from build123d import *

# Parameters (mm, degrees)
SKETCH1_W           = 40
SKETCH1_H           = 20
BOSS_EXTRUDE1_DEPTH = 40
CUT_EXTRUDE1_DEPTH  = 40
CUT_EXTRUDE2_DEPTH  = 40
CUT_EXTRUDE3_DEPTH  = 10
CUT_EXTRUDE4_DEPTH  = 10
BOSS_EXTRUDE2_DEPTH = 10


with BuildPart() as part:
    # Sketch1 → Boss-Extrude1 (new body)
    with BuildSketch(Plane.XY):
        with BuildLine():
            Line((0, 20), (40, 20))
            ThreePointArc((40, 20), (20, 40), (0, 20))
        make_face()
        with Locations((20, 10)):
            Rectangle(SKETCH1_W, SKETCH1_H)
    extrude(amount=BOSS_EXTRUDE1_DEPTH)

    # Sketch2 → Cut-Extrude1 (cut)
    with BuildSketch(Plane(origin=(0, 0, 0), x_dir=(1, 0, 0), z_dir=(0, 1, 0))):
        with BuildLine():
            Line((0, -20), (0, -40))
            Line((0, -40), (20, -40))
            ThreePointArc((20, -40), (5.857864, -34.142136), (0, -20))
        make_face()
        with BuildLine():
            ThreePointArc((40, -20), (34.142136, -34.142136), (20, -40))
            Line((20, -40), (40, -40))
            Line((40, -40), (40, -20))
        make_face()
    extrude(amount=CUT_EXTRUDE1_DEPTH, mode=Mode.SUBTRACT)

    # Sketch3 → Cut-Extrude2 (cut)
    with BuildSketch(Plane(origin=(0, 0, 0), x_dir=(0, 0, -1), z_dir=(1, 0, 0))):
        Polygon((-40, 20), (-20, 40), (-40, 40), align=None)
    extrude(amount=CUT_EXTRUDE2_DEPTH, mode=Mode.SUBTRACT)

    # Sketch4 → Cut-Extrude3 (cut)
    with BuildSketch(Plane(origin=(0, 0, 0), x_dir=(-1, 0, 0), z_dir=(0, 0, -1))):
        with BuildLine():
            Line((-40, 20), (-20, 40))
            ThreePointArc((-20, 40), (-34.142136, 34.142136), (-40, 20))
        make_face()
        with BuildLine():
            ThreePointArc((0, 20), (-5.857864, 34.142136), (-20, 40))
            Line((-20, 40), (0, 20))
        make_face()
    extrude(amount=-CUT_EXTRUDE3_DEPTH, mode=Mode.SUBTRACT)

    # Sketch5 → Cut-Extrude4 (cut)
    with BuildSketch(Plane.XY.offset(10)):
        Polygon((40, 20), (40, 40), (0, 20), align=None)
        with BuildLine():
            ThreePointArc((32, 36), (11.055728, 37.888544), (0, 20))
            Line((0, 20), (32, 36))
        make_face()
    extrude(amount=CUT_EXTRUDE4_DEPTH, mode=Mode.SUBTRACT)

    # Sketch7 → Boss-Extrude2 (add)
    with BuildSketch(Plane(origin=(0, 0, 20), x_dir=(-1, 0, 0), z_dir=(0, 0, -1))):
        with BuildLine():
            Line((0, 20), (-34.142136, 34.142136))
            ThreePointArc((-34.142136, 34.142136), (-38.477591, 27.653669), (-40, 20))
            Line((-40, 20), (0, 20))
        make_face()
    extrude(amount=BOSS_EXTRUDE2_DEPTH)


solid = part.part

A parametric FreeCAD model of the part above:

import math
import FreeCAD as App
import Part
import Sketcher
Q = App.Units.Quantity


def add_polygon(sketch, points):
    """Adds a closed chain of lines whose ends are joined by coincident constraints."""
    first, n = sketch.GeometryCount, len(points)
    for a, b in zip(points, points[1:] + points[:1]):
        sketch.addGeometry(Part.LineSegment(App.Vector(*a, 0), App.Vector(*b, 0)), False)
    for i in range(n):
        sketch.addConstraint(Sketcher.Constraint("Coincident", first + i, 2, first + (i + 1) % n, 1))

doc = App.newDocument("Part")
body = doc.addObject("PartDesign::Body", "Body")

# Sketch on XY plane
sketch1 = body.newObject("Sketcher::SketchObject", "Sketch")
sketch1.AttachmentSupport = (doc.getObject("XY_Plane"), [""])
sketch1.MapMode = "FlatFace"
sketch1.addGeometry([
    Part.ArcOfCircle(Part.Circle(App.Vector(20, 20, 0), App.Vector(0, 0, 1), 20), math.radians(0), math.radians(180)),
    Part.LineSegment(App.Vector(0, 20, 0), App.Vector(0, 0, 0)),
    Part.LineSegment(App.Vector(0, 0, 0), App.Vector(40, 0, 0)),
    Part.LineSegment(App.Vector(40, 0, 0), App.Vector(40, 20, 0)),
], False)
sketch1.addConstraint([
    Sketcher.Constraint("Tangent", 0, 2, 1, 1),
    Sketcher.Constraint("Coincident", 1, 2, 2, 1),
    Sketcher.Constraint("Coincident", 2, 2, 3, 1),
    Sketcher.Constraint("Tangent", 3, 2, 0, 1),
    Sketcher.Constraint("Vertical", 1),
    Sketcher.Constraint("Horizontal", 2),
    Sketcher.Constraint("Vertical", 3),
    Sketcher.Constraint("Coincident", 1, 2, -1, 1),
    Sketcher.Constraint("Radius", 0, Q("20 mm")),
    Sketcher.Constraint("DistanceY", 1, 2, 1, 1, Q("20 mm")),
])
pad1 = body.newObject("PartDesign::Pad", "Pad")
pad1.Profile = sketch1
pad1.Length = 40

# Sketch on XZ plane
sketch2 = body.newObject("Sketcher::SketchObject", "Sketch001")
sketch2.AttachmentSupport = (doc.getObject("XZ_Plane"), [""])
sketch2.MapMode = "FlatFace"
sketch2.addGeometry([
    Part.LineSegment(App.Vector(0, 20, 0), App.Vector(0, 40, 0)),  # 0
    Part.LineSegment(App.Vector(0, 40, 0), App.Vector(20, 40, 0)),  # 1
    Part.ArcOfCircle(Part.Circle(App.Vector(20, 20, 0), App.Vector(0, 0, 1), 20), math.radians(90), math.radians(180)),  # 2
    Part.ArcOfCircle(Part.Circle(App.Vector(20, 20, 0), App.Vector(0, 0, 1), 20), math.radians(0), math.radians(90)),  # 3
    Part.LineSegment(App.Vector(20, 40, 0), App.Vector(40, 40, 0)),  # 4
    Part.LineSegment(App.Vector(40, 40, 0), App.Vector(40, 20, 0)),  # 5
], False)
sketch2.addConstraint([
    Sketcher.Constraint("Coincident", 0, 2, 1, 1),
    Sketcher.Constraint("Tangent", 1, 2, 2, 1),
    Sketcher.Constraint("Tangent", 2, 2, 0, 1),
    Sketcher.Constraint("Tangent", 3, 2, 4, 1),
    Sketcher.Constraint("Coincident", 4, 2, 5, 1),
    Sketcher.Constraint("Tangent", 5, 2, 3, 1),
    Sketcher.Constraint("Vertical", 0),
    Sketcher.Constraint("Horizontal", 1),
    Sketcher.Constraint("Horizontal", 4),
    Sketcher.Constraint("Vertical", 5),
    Sketcher.Constraint("Coincident", 3, 3, 2, 3),
    Sketcher.Constraint("Equal", 2, 3),
    Sketcher.Constraint("PointOnObject", 0, 2, -2),
    Sketcher.Constraint("Radius", 2, Q("19.999999 mm")),
    Sketcher.Constraint("DistanceY", -1, 1, 2, 3, Q("20.000001 mm")),
])
pocket1 = body.newObject("PartDesign::Pocket", "Pocket")
pocket1.Profile = sketch2
pocket1.Length = 40

# Sketch on YZ plane
sketch3 = body.newObject("Sketcher::SketchObject", "Sketch002")
sketch3.AttachmentSupport = (doc.getObject("YZ_Plane"), [""])
sketch3.MapMode = "FlatFace"
add_polygon(sketch3, [(20, 40), (40, 20), (40, 40)])  # lines 0-2
sketch3.addConstraint([
    Sketcher.Constraint("Vertical", 1),
    Sketcher.Constraint("Horizontal", 2),
    Sketcher.Constraint("Equal", 2, 1),
    Sketcher.Constraint("DistanceX", 2, 2, 2, 1, Q("20 mm")),
    Sketcher.Constraint("DistanceX", -1, 1, 0, 2, Q("40 mm")),
    Sketcher.Constraint("DistanceY", -1, 1, 0, 2, Q("20 mm")),
])
pocket2 = body.newObject("PartDesign::Pocket", "Pocket001")
pocket2.Profile = sketch3
pocket2.Length = 40
pocket2.Reversed = True

# Sketch on XY plane
sketch4 = body.newObject("Sketcher::SketchObject", "Sketch003")
sketch4.AttachmentSupport = (doc.getObject("XY_Plane"), [""])
sketch4.MapMode = "FlatFace"
sketch4.addGeometry([
    Part.LineSegment(App.Vector(40, 20, 0), App.Vector(20, 40, 0)),
    Part.ArcOfCircle(Part.Circle(App.Vector(20, 20, 0), App.Vector(0, 0, 1), 20), math.radians(0), math.radians(90)),
    Part.ArcOfCircle(Part.Circle(App.Vector(20, 20, 0), App.Vector(0, 0, 1), 20), math.radians(90), math.radians(180)),
    Part.LineSegment(App.Vector(20, 40, 0), App.Vector(0, 20, 0)),
], False)
sketch4.addConstraint([
    Sketcher.Constraint("Coincident", 0, 1, 1, 1),
    Sketcher.Constraint("Coincident", 1, 2, 0, 2),
    Sketcher.Constraint("Coincident", 2, 1, 3, 1),
    Sketcher.Constraint("Coincident", 3, 2, 2, 2),
    Sketcher.Constraint("Coincident", 2, 3, 1, 3),
    Sketcher.Constraint("Coincident", 2, 1, 1, 2),
    Sketcher.Constraint("PointOnObject", 3, 2, -2),
    Sketcher.Constraint("Perpendicular", 0, 3),
    Sketcher.Constraint("Horizontal", 2, 3, 0, 1),
    Sketcher.Constraint("Vertical", 2, 3, 1, 2),
    Sketcher.Constraint("Radius", 1, Q("19.999999 mm")),
    Sketcher.Constraint("DistanceY", -1, 1, 1, 3, Q("20.000001 mm")),
])
pocket3 = body.newObject("PartDesign::Pocket", "Pocket002")
pocket3.Profile = sketch4
pocket3.Length = 10
pocket3.Reversed = True

# Sketch on XY plane
sketch5 = body.newObject("Sketcher::SketchObject", "Sketch004")
sketch5.AttachmentSupport = (doc.getObject("XY_Plane"), [""])
sketch5.MapMode = "FlatFace"
sketch5.AttachmentOffset = App.Placement(App.Vector(0, 0, 10), App.Rotation())
sketch5.addGeometry([
    Part.LineSegment(App.Vector(40, 20, 0), App.Vector(40, 40, 0)),
    Part.LineSegment(App.Vector(40, 40, 0), App.Vector(32, 36, 0)),
    Part.ArcOfCircle(Part.Circle(App.Vector(20, 20, 0), App.Vector(0, 0, 1), 20), math.radians(53), math.radians(180)),
    Part.LineSegment(App.Vector(0, 20, 0), App.Vector(40, 20, 0)),
], False)
sketch5.addConstraint([
    Sketcher.Constraint("Coincident", 0, 2, 1, 1),
    Sketcher.Constraint("Coincident", 1, 2, 2, 1),
    Sketcher.Constraint("Coincident", 2, 2, 3, 1),
    Sketcher.Constraint("Coincident", 3, 2, 0, 1),
    Sketcher.Constraint("Vertical", 0),
    Sketcher.Constraint("Horizontal", 3),
    Sketcher.Constraint("PointOnObject", 2, 2, -2),
    Sketcher.Constraint("Radius", 2, Q("20 mm")),
    Sketcher.Constraint("DistanceX", 3, 1, 3, 2, Q("40 mm")),
    Sketcher.Constraint("DistanceY", 0, 1, 0, 2, Q("20 mm")),
    Sketcher.Constraint("DistanceY", -1, 1, 2, 3, Q("20 mm")),
    Sketcher.Constraint("DistanceY", -1, 1, 0, 2, Q("40 mm")),
    Sketcher.Constraint("DistanceX", -1, 1, 1, 2, Q("32 mm")),
])
pocket4 = body.newObject("PartDesign::Pocket", "Pocket003")
pocket4.Profile = sketch5
pocket4.Length = 10
pocket4.Reversed = True

# Sketch on XY plane
sketch6 = body.newObject("Sketcher::SketchObject", "Sketch005")
sketch6.AttachmentSupport = (doc.getObject("XY_Plane"), [""])
sketch6.MapMode = "FlatFace"
sketch6.AttachmentOffset = App.Placement(App.Vector(0, 0, 20), App.Rotation())
sketch6.addGeometry([
    Part.LineSegment(App.Vector(0, 20, 0), App.Vector(34, 34, 0)),
    Part.ArcOfCircle(Part.Circle(App.Vector(20, 20, 0), App.Vector(0, 0, 1), 20), math.radians(0), math.radians(45)),
    Part.LineSegment(App.Vector(40, 20, 0), App.Vector(0, 20, 0)),
], False)
sketch6.addConstraint([
    Sketcher.Constraint("Coincident", 0, 2, 1, 2),
    Sketcher.Constraint("Coincident", 1, 1, 2, 1),
    Sketcher.Constraint("Coincident", 2, 2, 0, 1),
    Sketcher.Constraint("Horizontal", 2),
    Sketcher.Constraint("PointOnObject", 2, 2, -2),
    Sketcher.Constraint("DistanceX", 2, 2, 2, 1, Q("40 mm")),
    Sketcher.Constraint("DistanceY", -1, 1, 1, 3, Q("20.000002 mm")),
    Sketcher.Constraint("DistanceY", -1, 1, 1, 1, Q("20 mm")),
    Sketcher.Constraint("Angle", 0, Q("22.5 deg")),
    Sketcher.Constraint("Radius", 1, Q("19.999998 mm")),
])
pad2 = body.newObject("PartDesign::Pad", "Pad001")
pad2.Profile = sketch6
pad2.Length = 10
pad2.Reversed = True

doc.recompute()
